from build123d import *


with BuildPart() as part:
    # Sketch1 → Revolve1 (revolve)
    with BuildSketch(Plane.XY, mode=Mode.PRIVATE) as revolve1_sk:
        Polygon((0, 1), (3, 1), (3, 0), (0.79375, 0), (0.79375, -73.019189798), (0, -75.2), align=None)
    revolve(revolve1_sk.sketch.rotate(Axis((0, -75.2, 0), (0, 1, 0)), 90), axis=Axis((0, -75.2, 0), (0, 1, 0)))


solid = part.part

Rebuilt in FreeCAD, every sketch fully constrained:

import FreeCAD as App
import Part
import Sketcher
Q = App.Units.Quantity

doc = App.newDocument("Part")
params = doc.addObject("Spreadsheet::Sheet", "Params")
for row, (alias, value) in enumerate([
    ("sketch1_width", "3 mm"),
    ("sketch1_height", "1 mm"),
    ("sketch1_height2", "76.2 mm"),
    ("revolution_angle", "360 deg"),
], start=1):
    params.set(f"A{row}", alias)
    params.set(f"B{row}", "=" + value)
    params.setAlias(f"B{row}", alias)

body = doc.addObject("PartDesign::Body", "Body")

sketch1 = body.newObject("Sketcher::SketchObject", "Sketch")
sketch1.AttachmentSupport = (doc.getObject("XY_Plane"), [""])
sketch1.MapMode = "FlatFace"
sketch1.addGeometry(Part.LineSegment(App.Vector(3, 1, 0), App.Vector(0, 1, 0)), False)
sketch1.addGeometry(Part.LineSegment(App.Vector(0, 1, 0), App.Vector(0, -75.2, 0)), False)
sketch1.addGeometry(Part.LineSegment(App.Vector(0, -75.2, 0), App.Vector(0.8, -73, 0)), False)
sketch1.addGeometry(Part.LineSegment(App.Vector(0.8, -73, 0), App.Vector(0.8, 0, 0)), False)
sketch1.addGeometry(Part.LineSegment(App.Vector(0.8, 0, 0), App.Vector(3, 0, 0)), False)
sketch1.addGeometry(Part.LineSegment(App.Vector(3, 0, 0), App.Vector(3, 1, 0)), False)
sketch1.addConstraint(Sketcher.Constraint("Coincident", 0, 2, 1, 1))
sketch1.addConstraint(Sketcher.Constraint("Coincident", 1, 2, 2, 1))
sketch1.addConstraint(Sketcher.Constraint("Coincident", 2, 2, 3, 1))
sketch1.addConstraint(Sketcher.Constraint("Coincident", 3, 2, 4, 1))
sketch1.addConstraint(Sketcher.Constraint("Coincident", 4, 2, 5, 1))
sketch1.addConstraint(Sketcher.Constraint("Coincident", 5, 2, 0, 1))
sketch1.addConstraint(Sketcher.Constraint("Horizontal", 0))
sketch1.addConstraint(Sketcher.Constraint("Vertical", 1))
sketch1.addConstraint(Sketcher.Constraint("Vertical", 3))
sketch1.addConstraint(Sketcher.Constraint("Horizontal", 4))
sketch1.addConstraint(Sketcher.Constraint("Vertical", 5))
sketch1.addConstraint(Sketcher.Constraint("PointOnObject", 0, 2, -2))
sketch1.addConstraint(Sketcher.Constraint("PointOnObject", 3, 2, -1))
sketch1.addConstraint(Sketcher.Constraint("DistanceX", 0, 2, 0, 1, 3.0))
sketch1.addConstraint(Sketcher.Constraint("DistanceY", 5, 1, 5, 2, 1.0))
sketch1.addConstraint(Sketcher.Constraint("Angle", 2, Q("70 deg")))
sketch1.addConstraint(Sketcher.Constraint("DistanceY", 1, 2, 1, 1, 76.2))
sketch1.addConstraint(Sketcher.Constraint("DistanceX", 4, 1, 4, 2, 2.20625))
sketch1.setExpression("Constraints[13]", "Params.sketch1_width")
sketch1.setExpression("Constraints[14]", "Params.sketch1_height")
sketch1.setExpression("Constraints[16]", "Params.sketch1_height2")
revolution = body.newObject("PartDesign::Revolution", "Revolution")
revolution.Profile = sketch1
revolution.ReferenceAxis = (sketch1, ["V_Axis"])
revolution.setExpression("Angle", "Params.revolution_angle")

doc.recompute()
